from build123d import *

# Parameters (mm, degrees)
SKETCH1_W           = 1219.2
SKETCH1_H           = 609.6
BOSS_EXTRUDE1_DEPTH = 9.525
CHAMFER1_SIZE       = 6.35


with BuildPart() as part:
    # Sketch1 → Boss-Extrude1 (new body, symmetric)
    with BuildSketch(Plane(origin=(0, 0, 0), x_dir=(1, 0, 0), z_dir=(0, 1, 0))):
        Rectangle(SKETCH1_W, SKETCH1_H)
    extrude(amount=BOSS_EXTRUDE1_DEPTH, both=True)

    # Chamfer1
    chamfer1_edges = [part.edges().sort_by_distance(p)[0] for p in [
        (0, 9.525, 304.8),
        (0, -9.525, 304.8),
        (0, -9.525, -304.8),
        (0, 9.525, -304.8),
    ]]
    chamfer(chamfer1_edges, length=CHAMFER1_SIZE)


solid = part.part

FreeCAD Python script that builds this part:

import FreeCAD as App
import Part
import Sketcher

V = App.Vector
Q = App.Units.Quantity


def edges_at(feature, points):
    """Names of the edges that pass closest to the given points."""
    edges = feature.Shape.Edges
    near = lambda p: min(range(len(edges)), key=lambda i: edges[i].distToShape(Part.Vertex(*p))[0])
    return sorted({f"Edge{near(p) + 1}" for p in points})


def add_polygon(sketch, points):
    """Adds a closed chain of lines whose ends are joined by coincident constraints."""
    first, n = sketch.GeometryCount, len(points)
    for a, b in zip(points, points[1:] + points[:1]):
        sketch.addGeometry(Part.LineSegment(App.Vector(*a, 0), App.Vector(*b, 0)), False)
    for i in range(n):
        sketch.addConstraint(Sketcher.Constraint("Coincident", first + i, 2, first + (i + 1) % n, 1))

doc = App.newDocument("Part")
params = doc.addObject("Spreadsheet::Sheet", "Params")
for row, (alias, value) in enumerate([
    ("sketch1_width", "48 in"),
    ("sketch1_height", "24 in"),
    ("pad1_length", "0.75 in"),
    ("chamfer_size", "0.25 in"),
], start=1):
    params.set(f"A{row}", alias)
    params.set(f"B{row}", "=" + value)
    params.setAlias(f"B{row}", alias)

body = doc.addObject("PartDesign::Body", "Body")

# Sketch on XZ plane
sketch1 = body.newObject("Sketcher::SketchObject", "Sketch")
sketch1.AttachmentSupport = (doc.getObject("XZ_Plane"), [""])
sketch1.MapMode = "FlatFace"
add_polygon(sketch1, [(-610, -305), (-610, 305), (610, 305), (610, -305)])  # lines 0-3
sketch1.addConstraint([
    Sketcher.Constraint("Vertical", 0),
    Sketcher.Constraint("Horizontal", 1),
    Sketcher.Constraint("Vertical", 2),
    Sketcher.Constraint("Horizontal", 3),
    Sketcher.Constraint("Symmetric", 0, 2, 2, 2, -1, 1),
    Sketcher.Constraint("DistanceX", 1, 1, 1, 2, Q("48 in")),
    Sketcher.Constraint("DistanceY", 0, 1, 0, 2, Q("24 in")),
])
sketch1.setExpression("Constraints[9]", "Params.sketch1_width")
sketch1.setExpression("Constraints[10]", "Params.sketch1_height")
pad1 = body.newObject("PartDesign::Pad", "Pad")
pad1.Profile = sketch1
pad1.setExpression("Length", "Params.pad1_length")
pad1.Midplane = True
doc.recompute()

chamfer = body.newObject("PartDesign::Chamfer", "Chamfer")
chamfer.Base = (pad1, edges_at(pad1, [
    (0, 9.525, 304.8),
    (0, -9.525, 304.8),
    (0, -9.525, -304.8),
    (0, 9.525, -304.8),
]))
chamfer.setExpression("Size", "Params.chamfer_size")

doc.recompute()
